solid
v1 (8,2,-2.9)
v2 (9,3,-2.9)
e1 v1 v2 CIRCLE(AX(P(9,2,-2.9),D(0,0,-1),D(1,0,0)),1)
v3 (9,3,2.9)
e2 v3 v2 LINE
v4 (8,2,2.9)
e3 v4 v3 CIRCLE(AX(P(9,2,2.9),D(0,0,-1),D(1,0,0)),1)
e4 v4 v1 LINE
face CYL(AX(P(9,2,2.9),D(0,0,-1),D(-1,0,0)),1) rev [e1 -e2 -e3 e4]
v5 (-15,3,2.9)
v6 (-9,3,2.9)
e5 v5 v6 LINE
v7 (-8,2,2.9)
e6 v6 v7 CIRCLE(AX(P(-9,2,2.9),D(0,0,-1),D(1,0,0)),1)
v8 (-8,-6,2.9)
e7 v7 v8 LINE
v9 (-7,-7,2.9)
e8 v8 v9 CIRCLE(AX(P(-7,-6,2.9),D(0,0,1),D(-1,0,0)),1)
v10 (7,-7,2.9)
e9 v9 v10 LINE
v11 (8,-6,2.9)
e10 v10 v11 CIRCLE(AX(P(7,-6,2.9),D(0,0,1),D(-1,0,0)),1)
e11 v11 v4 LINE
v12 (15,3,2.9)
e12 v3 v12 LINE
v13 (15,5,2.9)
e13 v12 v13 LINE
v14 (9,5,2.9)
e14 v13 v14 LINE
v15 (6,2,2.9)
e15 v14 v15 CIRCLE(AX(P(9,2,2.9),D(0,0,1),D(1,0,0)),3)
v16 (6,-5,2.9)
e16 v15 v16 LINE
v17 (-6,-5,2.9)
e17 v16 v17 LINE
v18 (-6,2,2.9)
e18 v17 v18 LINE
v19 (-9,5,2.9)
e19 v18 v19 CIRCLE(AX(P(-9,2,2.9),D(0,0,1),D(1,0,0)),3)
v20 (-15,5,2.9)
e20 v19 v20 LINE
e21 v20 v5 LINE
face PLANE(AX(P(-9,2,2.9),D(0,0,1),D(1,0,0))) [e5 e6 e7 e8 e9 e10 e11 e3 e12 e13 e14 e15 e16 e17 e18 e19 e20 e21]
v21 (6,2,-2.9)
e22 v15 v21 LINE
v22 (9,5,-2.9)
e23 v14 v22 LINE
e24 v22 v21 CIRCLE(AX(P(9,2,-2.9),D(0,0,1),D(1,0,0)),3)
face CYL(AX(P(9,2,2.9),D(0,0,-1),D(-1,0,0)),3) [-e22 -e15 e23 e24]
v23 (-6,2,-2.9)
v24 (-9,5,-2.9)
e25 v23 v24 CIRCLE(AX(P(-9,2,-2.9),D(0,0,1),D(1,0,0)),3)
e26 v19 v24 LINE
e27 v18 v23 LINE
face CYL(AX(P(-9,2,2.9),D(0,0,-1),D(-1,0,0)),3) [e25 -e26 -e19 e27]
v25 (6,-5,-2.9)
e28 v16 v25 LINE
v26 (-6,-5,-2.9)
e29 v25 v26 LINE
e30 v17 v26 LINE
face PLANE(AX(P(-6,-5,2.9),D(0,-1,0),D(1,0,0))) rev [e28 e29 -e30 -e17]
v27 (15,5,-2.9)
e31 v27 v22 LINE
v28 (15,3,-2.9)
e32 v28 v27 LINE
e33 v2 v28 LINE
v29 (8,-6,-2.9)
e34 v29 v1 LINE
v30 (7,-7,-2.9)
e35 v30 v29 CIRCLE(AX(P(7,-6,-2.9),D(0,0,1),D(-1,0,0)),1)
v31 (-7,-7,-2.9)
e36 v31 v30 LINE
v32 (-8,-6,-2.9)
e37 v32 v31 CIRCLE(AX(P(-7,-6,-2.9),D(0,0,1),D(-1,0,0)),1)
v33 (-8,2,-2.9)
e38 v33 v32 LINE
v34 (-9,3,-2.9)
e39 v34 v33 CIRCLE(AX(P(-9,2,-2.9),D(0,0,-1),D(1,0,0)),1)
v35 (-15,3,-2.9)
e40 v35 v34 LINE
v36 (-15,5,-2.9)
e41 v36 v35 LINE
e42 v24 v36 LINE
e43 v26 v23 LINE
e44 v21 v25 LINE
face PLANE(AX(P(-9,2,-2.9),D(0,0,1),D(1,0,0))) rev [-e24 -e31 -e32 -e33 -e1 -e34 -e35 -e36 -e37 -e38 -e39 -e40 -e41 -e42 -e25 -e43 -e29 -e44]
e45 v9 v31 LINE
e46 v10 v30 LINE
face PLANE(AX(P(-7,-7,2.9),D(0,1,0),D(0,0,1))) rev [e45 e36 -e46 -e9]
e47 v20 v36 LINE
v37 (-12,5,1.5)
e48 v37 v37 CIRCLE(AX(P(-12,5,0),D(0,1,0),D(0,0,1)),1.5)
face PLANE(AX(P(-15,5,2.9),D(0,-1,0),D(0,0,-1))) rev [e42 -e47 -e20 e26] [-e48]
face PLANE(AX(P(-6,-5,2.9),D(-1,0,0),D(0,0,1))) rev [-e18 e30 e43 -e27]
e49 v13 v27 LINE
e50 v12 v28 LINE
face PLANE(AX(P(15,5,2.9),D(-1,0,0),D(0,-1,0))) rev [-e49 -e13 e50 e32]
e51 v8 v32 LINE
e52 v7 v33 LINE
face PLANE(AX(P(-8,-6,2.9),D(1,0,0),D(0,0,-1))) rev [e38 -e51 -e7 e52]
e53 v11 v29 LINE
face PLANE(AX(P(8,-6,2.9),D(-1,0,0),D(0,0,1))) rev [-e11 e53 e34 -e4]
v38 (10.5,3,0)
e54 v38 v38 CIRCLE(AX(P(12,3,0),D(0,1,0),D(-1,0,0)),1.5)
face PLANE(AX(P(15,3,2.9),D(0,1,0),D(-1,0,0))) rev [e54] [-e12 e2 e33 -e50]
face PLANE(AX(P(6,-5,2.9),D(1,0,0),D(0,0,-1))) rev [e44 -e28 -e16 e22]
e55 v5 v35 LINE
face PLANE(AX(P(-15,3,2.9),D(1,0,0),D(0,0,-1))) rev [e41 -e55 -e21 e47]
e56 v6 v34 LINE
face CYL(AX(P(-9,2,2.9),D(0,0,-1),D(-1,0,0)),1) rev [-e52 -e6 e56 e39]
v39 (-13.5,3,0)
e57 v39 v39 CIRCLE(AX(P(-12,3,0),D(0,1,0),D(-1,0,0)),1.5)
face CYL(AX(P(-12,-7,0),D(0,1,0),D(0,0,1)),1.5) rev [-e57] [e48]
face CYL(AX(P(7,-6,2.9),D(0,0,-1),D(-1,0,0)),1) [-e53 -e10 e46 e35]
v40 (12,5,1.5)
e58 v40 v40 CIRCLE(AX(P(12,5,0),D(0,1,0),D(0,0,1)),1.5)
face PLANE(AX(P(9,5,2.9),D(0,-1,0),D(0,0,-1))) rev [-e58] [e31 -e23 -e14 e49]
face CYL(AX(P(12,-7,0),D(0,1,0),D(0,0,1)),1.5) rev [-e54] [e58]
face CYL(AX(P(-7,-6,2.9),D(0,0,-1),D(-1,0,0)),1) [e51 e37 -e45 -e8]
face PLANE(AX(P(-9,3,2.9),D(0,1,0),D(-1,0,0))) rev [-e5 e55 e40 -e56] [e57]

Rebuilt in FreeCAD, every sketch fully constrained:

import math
import FreeCAD as App
import Part
import Sketcher

doc = App.newDocument("Part")
params = doc.addObject("Spreadsheet::Sheet", "Params")
for row, (alias, value) in enumerate([
    ("sketch1_radius", "3 mm"),
    ("sketch1_radius2", "1 mm"),
    ("sketch1_width", "12 mm"),
    ("sketch1_width2", "6 mm"),
    ("sketch1_height", "7 mm"),
    ("pad1_length", "5.8 mm"),
    ("sketch2_diameter", "3 mm"),
], start=1):
    params.set(f"A{row}", alias)
    params.set(f"B{row}", "=" + value)
    params.setAlias(f"B{row}", alias)

body = doc.addObject("PartDesign::Body", "Body")

# Sketch on XY plane
sketch1 = body.newObject("Sketcher::SketchObject", "Sketch")
sketch1.AttachmentSupport = (doc.getObject("XY_Plane"), [""])
sketch1.MapMode = "FlatFace"
sketch1.addGeometry(Part.LineSegment(App.Vector(6, -5, 0), App.Vector(-6, -5, 0)), False)
sketch1.addGeometry(Part.LineSegment(App.Vector(-6, -5, 0), App.Vector(-6, 2, 0)), False)
sketch1.addGeometry(Part.ArcOfCircle(Part.Circle(App.Vector(-9, 2, 0), App.Vector(0, 0, 1), 3), math.radians(0), math.radians(90)), False)
sketch1.addGeometry(Part.LineSegment(App.Vector(-9, 5, 0), App.Vector(-15, 5, 0)), False)
sketch1.addGeometry(Part.LineSegment(App.Vector(-15, 5, 0), App.Vector(-15, 3, 0)), False)
sketch1.addGeometry(Part.LineSegment(App.Vector(-15, 3, 0), App.Vector(-9, 3, 0)), False)
sketch1.addGeometry(Part.ArcOfCircle(Part.Circle(App.Vector(-9, 2, 0), App.Vector(0, 0, 1), 1), math.radians(0), math.radians(90)), False)
sketch1.addGeometry(Part.LineSegment(App.Vector(-8, 2, 0), App.Vector(-8, -6, 0)), False)
sketch1.addGeometry(Part.ArcOfCircle(Part.Circle(App.Vector(-7, -6, 0), App.Vector(0, 0, 1), 1), math.radians(-180), math.radians(-90)), False)
sketch1.addGeometry(Part.LineSegment(App.Vector(-7, -7, 0), App.Vector(7, -7, 0)), False)
sketch1.addGeometry(Part.ArcOfCircle(Part.Circle(App.Vector(7, -6, 0), App.Vector(0, 0, 1), 1), math.radians(-90), math.radians(0)), False)
sketch1.addGeometry(Part.LineSegment(App.Vector(8, -6, 0), App.Vector(8, 2, 0)), False)
sketch1.addGeometry(Part.ArcOfCircle(Part.Circle(App.Vector(9, 2, 0), App.Vector(0, 0, 1), 1), math.radians(90), math.radians(180)), False)
sketch1.addGeometry(Part.LineSegment(App.Vector(9, 3, 0), App.Vector(15, 3, 0)), False)
sketch1.addGeometry(Part.LineSegment(App.Vector(15, 3, 0), App.Vector(15, 5, 0)), False)
sketch1.addGeometry(Part.LineSegment(App.Vector(15, 5, 0), App.Vector(9, 5, 0)), False)
sketch1.addGeometry(Part.ArcOfCircle(Part.Circle(App.Vector(9, 2, 0), App.Vector(0, 0, 1), 3), math.radians(90), math.radians(180)), False)
sketch1.addGeometry(Part.LineSegment(App.Vector(6, 2, 0), App.Vector(6, -5, 0)), False)
sketch1.addConstraint(Sketcher.Constraint("Coincident", 0, 2, 1, 1))
sketch1.addConstraint(Sketcher.Constraint("Tangent", 1, 2, 2, 1))
sketch1.addConstraint(Sketcher.Constraint("Tangent", 2, 2, 3, 1))
sketch1.addConstraint(Sketcher.Constraint("Coincident", 3, 2, 4, 1))
sketch1.addConstraint(Sketcher.Constraint("Coincident", 4, 2, 5, 1))
sketch1.addConstraint(Sketcher.Constraint("Tangent", 5, 2, 6, 2))
sketch1.addConstraint(Sketcher.Constraint("Tangent", 6, 1, 7, 1))
sketch1.addConstraint(Sketcher.Constraint("Tangent", 7, 2, 8, 1))
sketch1.addConstraint(Sketcher.Constraint("Tangent", 8, 2, 9, 1))
sketch1.addConstraint(Sketcher.Constraint("Tangent", 9, 2, 10, 1))
sketch1.addConstraint(Sketcher.Constraint("Tangent", 10, 2, 11, 1))
sketch1.addConstraint(Sketcher.Constraint("Tangent", 11, 2, 12, 2))
sketch1.addConstraint(Sketcher.Constraint("Tangent", 12, 1, 13, 1))
sketch1.addConstraint(Sketcher.Constraint("Coincident", 13, 2, 14, 1))
sketch1.addConstraint(Sketcher.Constraint("Coincident", 14, 2, 15, 1))
sketch1.addConstraint(Sketcher.Constraint("Tangent", 15, 2, 16, 1))
sketch1.addConstraint(Sketcher.Constraint("Tangent", 16, 2, 17, 1))
sketch1.addConstraint(Sketcher.Constraint("Coincident", 17, 2, 0, 1))
sketch1.addConstraint(Sketcher.Constraint("Horizontal", 0))
sketch1.addConstraint(Sketcher.Constraint("Vertical", 1))
sketch1.addConstraint(Sketcher.Constraint("Horizontal", 3))
sketch1.addConstraint(Sketcher.Constraint("Vertical", 4))
sketch1.addConstraint(Sketcher.Constraint("Horizontal", 5))
sketch1.addConstraint(Sketcher.Constraint("Vertical", 7))
sketch1.addConstraint(Sketcher.Constraint("Horizontal", 9))
sketch1.addConstraint(Sketcher.Constraint("Vertical", 11))
sketch1.addConstraint(Sketcher.Constraint("Horizontal", 13))
sketch1.addConstraint(Sketcher.Constraint("Vertical", 14))
sketch1.addConstraint(Sketcher.Constraint("Horizontal", 15))
sketch1.addConstraint(Sketcher.Constraint("Vertical", 17))
sketch1.addConstraint(Sketcher.Constraint("Coincident", 6, 3, 2, 3))
sketch1.addConstraint(Sketcher.Constraint("Coincident", 16, 3, 12, 3))
sketch1.addConstraint(Sketcher.Constraint("Equal", 6, 8))
sketch1.addConstraint(Sketcher.Constraint("Equal", 8, 10))
sketch1.addConstraint(Sketcher.Constraint("Equal", 10, 12))
sketch1.addConstraint(Sketcher.Constraint("Equal", 2, 16))
sketch1.addConstraint(Sketcher.Constraint("Symmetric", 2, 3, 12, 3, -2))
sketch1.addConstraint(Sketcher.Constraint("Equal", 5, 13))
sketch1.addConstraint(Sketcher.Constraint("Radius", 2, 3.0))
sketch1.addConstraint(Sketcher.Constraint("Radius", 6, 1.0))
sketch1.addConstraint(Sketcher.Constraint("DistanceX", 0, 2, 0, 1, 12.0))
sketch1.addConstraint(Sketcher.Constraint("DistanceX", 3, 2, 3, 1, 6.0))
sketch1.addConstraint(Sketcher.Constraint("DistanceY", 1, 1, 1, 2, 7.0))
sketch1.addConstraint(Sketcher.Constraint("DistanceY", 7, 2, 7, 1, 8.0))
sketch1.addConstraint(Sketcher.Constraint("DistanceY", -1, 1, 2, 3, 2.0))
sketch1.setExpression("Constraints[38]", "Params.sketch1_radius")
sketch1.setExpression("Constraints[39]", "Params.sketch1_radius2")
sketch1.setExpression("Constraints[40]", "Params.sketch1_width")
sketch1.setExpression("Constraints[41]", "Params.sketch1_width2")
sketch1.setExpression("Constraints[42]", "Params.sketch1_height")
pad1 = body.newObject("PartDesign::Pad", "Pad")
pad1.Profile = sketch1
pad1.setExpression("Length", "Params.pad1_length")
pad1.Midplane = True

# Sketch on XZ plane
sketch2 = body.newObject("Sketcher::SketchObject", "Sketch001")
sketch2.AttachmentSupport = (doc.getObject("XZ_Plane"), [""])
sketch2.MapMode = "FlatFace"
sketch2.AttachmentOffset = App.Placement(App.Vector(0, 0, -5), App.Rotation())
sketch2.addGeometry(Part.Circle(App.Vector(12, 0, 0), App.Vector(0, 0, 1), 1.5), False)
sketch2.addGeometry(Part.Circle(App.Vector(-12, 0, 0), App.Vector(0, 0, 1), 1.5), False)
sketch2.addConstraint(Sketcher.Constraint("Equal", 0, 1))
sketch2.addConstraint(Sketcher.Constraint("Symmetric", 0, 3, 1, 3, -1, 1))
sketch2.addConstraint(Sketcher.Constraint("PointOnObject", 0, 3, -1))
sketch2.addConstraint(Sketcher.Constraint("Diameter", 0, 3.0))
sketch2.addConstraint(Sketcher.Constraint("DistanceX", -1, 1, 0, 3, 12.0))
sketch2.setExpression("Constraints[3]", "Params.sketch2_diameter")
pocket1 = body.newObject("PartDesign::Pocket", "Pocket")
pocket1.Profile = sketch2
pocket1.Type = "ThroughAll"
pocket1.Reversed = True

doc.recompute()
